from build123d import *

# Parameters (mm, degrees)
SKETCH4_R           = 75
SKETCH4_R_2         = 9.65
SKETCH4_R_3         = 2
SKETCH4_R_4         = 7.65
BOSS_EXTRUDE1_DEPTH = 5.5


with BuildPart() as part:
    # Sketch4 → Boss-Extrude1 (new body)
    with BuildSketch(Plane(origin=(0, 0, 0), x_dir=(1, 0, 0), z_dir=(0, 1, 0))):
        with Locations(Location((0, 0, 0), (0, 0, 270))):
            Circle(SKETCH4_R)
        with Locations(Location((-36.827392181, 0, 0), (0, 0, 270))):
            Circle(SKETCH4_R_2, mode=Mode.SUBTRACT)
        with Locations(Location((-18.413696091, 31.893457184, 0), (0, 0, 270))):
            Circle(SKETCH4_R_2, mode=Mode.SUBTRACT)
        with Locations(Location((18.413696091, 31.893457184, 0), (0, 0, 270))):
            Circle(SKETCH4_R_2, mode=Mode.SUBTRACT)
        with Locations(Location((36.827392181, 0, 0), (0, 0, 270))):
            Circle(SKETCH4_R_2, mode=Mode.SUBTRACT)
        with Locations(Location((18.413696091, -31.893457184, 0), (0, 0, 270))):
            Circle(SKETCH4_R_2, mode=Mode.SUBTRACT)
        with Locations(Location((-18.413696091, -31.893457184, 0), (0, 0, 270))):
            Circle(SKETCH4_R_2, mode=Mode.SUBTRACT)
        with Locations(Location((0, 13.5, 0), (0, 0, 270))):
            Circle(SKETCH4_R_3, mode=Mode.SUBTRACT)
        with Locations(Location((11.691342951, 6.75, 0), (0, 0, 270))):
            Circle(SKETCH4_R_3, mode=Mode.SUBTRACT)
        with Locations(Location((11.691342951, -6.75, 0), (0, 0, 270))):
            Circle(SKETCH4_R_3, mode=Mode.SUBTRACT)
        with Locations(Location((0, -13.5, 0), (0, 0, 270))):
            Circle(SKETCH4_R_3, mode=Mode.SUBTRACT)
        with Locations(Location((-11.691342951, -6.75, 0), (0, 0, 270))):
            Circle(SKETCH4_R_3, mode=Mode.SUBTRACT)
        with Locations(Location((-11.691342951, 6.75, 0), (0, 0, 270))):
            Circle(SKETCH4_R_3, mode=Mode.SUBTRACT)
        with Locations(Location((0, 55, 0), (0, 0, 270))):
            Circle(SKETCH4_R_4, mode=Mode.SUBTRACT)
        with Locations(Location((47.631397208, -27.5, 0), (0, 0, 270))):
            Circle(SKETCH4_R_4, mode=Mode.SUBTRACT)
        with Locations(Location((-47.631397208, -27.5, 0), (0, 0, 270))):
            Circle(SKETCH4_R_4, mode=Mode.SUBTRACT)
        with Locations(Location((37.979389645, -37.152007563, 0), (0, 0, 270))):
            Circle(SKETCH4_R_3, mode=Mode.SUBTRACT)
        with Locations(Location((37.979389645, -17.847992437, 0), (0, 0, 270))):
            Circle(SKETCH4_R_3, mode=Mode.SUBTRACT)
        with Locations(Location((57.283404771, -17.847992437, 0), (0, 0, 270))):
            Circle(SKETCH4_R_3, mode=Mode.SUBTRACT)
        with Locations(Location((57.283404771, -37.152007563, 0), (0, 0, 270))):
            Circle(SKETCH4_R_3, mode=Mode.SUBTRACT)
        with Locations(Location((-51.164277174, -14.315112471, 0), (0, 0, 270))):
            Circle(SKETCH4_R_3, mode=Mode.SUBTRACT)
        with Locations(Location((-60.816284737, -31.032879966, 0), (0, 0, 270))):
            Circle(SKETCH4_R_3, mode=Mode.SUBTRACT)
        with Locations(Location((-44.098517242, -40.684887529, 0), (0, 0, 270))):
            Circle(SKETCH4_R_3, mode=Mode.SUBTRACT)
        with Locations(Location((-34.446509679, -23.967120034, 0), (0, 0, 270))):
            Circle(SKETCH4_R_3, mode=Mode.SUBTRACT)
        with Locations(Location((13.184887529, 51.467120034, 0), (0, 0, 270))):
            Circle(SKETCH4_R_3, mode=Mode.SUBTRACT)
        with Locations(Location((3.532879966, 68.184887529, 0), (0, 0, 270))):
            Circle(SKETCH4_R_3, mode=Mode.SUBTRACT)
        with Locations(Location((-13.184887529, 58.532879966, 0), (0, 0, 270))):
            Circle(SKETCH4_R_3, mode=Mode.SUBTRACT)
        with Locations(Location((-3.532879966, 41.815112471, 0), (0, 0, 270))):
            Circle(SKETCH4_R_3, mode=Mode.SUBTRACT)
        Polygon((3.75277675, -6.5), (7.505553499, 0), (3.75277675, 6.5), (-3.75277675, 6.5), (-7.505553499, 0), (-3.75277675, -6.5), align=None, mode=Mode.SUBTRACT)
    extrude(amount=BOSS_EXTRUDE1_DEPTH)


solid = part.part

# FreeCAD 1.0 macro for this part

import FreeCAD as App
import Part
import Sketcher
from FreeCAD import Vector
Q = App.Units.Quantity

doc = App.newDocument("Part")
body = doc.addObject("PartDesign::Body", "Body")

# Sketch on XZ plane
sketch1 = body.newObject("Sketcher::SketchObject", "Sketch")
sketch1.AttachmentSupport = (doc.getObject("XZ_Plane"), [""])
sketch1.MapMode = "FlatFace"
sketch1.addGeometry([
    Part.Circle(Vector(0, 0, 0), Vector(0, 0, 1), 75),  # 0
    Part.Circle(Vector(-13.2, -58.5, 0), Vector(0, 0, 1), 2),  # 1
    Part.Circle(Vector(-18.4, -31.9, 0), Vector(0, 0, 1), 9.7),  # 2
    Part.Circle(Vector(-3.5, -41.8, 0), Vector(0, 0, 1), 2),  # 3
    Part.Circle(Vector(-51.2, 14.3, 0), Vector(0, 0, 1), 2),  # 4
    Part.Circle(Vector(-36.8, 0, 0), Vector(0, 0, 1), 9.7),  # 5
    Part.Circle(Vector(-47.6, 27.5, 0), Vector(0, 0, 1), 7.7),  # 6
    Part.Circle(Vector(-60.8, 31, 0), Vector(0, 0, 1), 2),  # 7
    Part.Circle(Vector(-34.4, 24, 0), Vector(0, 0, 1), 2),  # 8
    Part.Circle(Vector(-44.1, 40.7, 0), Vector(0, 0, 1), 2),  # 9
    Part.Circle(Vector(-11.7, -6.8, 0), Vector(0, 0, 1), 2),  # 10
    Part.Circle(Vector(-11.7, 6.8, 0), Vector(0, 0, 1), 2),  # 11
    Part.Circle(Vector(-18.4, 31.9, 0), Vector(0, 0, 1), 9.7),  # 12
    Part.Circle(Vector(3.5, -68.2, 0), Vector(0, 0, 1), 2),  # 13
    Part.Circle(Vector(0, -55, 0), Vector(0, 0, 1), 7.7),  # 14
    Part.Circle(Vector(13.2, -51.5, 0), Vector(0, 0, 1), 2),  # 15
    Part.Circle(Vector(18.4, -31.9, 0), Vector(0, 0, 1), 9.7),  # 16
    Part.Circle(Vector(0, -13.5, 0), Vector(0, 0, 1), 2),  # 17
    Part.LineSegment(Vector(7.5, 0, 0), Vector(3.8, 6.5, 0)),  # 18
    Part.LineSegment(Vector(3.8, 6.5, 0), Vector(-3.8, 6.5, 0)),  # 19
    Part.LineSegment(Vector(-3.8, 6.5, 0), Vector(-7.5, 0, 0)),  # 20
    Part.LineSegment(Vector(-7.5, 0, 0), Vector(-3.8, -6.5, 0)),  # 21
    Part.LineSegment(Vector(-3.8, -6.5, 0), Vector(3.8, -6.5, 0)),  # 22
    Part.LineSegment(Vector(3.8, -6.5, 0), Vector(7.5, 0, 0)),  # 23
    Part.Circle(Vector(11.7, -6.8, 0), Vector(0, 0, 1), 2),  # 24
    Part.Circle(Vector(0, 13.5, 0), Vector(0, 0, 1), 2),  # 25
    Part.Circle(Vector(11.7, 6.8, 0), Vector(0, 0, 1), 2),  # 26
    Part.Circle(Vector(18.4, 31.9, 0), Vector(0, 0, 1), 9.7),  # 27
    Part.Circle(Vector(36.8, 0, 0), Vector(0, 0, 1), 9.7),  # 28
    Part.Circle(Vector(38, 17.8, 0), Vector(0, 0, 1), 2),  # 29
    Part.Circle(Vector(38, 37.2, 0), Vector(0, 0, 1), 2),  # 30
    Part.Circle(Vector(47.6, 27.5, 0), Vector(0, 0, 1), 7.7),  # 31
    Part.Circle(Vector(57.3, 17.8, 0), Vector(0, 0, 1), 2),  # 32
    Part.Circle(Vector(57.3, 37.2, 0), Vector(0, 0, 1), 2),  # 33
], False)
sketch1.addConstraint([
    Sketcher.Constraint("Coincident", 18, 2, 19, 1),
    Sketcher.Constraint("Coincident", 19, 2, 20, 1),
    Sketcher.Constraint("Coincident", 20, 2, 21, 1),
    Sketcher.Constraint("Coincident", 21, 2, 22, 1),
    Sketcher.Constraint("Coincident", 22, 2, 23, 1),
    Sketcher.Constraint("Coincident", 23, 2, 18, 1),
    Sketcher.Constraint("Horizontal", 19),
    Sketcher.Constraint("Horizontal", 22),
    Sketcher.Constraint("Coincident", 0, 3, -1, 1),
    Sketcher.Constraint("Equal", 1, 3),
    Sketcher.Constraint("Equal", 3, 4),
    Sketcher.Constraint("Equal", 2, 5),
    Sketcher.Constraint("Equal", 4, 7),
    Sketcher.Constraint("Equal", 7, 8),
    Sketcher.Constraint("Equal", 8, 9),
    Sketcher.Constraint("Equal", 9, 10),
    Sketcher.Constraint("Equal", 10, 11),
    Sketcher.Constraint("Equal", 5, 12),
    Sketcher.Constraint("Equal", 11, 13),
    Sketcher.Constraint("Equal", 6, 14),
    Sketcher.Constraint("Equal", 13, 15),
    Sketcher.Constraint("Equal", 12, 16),
    Sketcher.Constraint("Equal", 15, 17),
    Sketcher.Constraint("Equal", 17, 24),
    Sketcher.Constraint("Equal", 24, 25),
    Sketcher.Constraint("Equal", 25, 26),
    Sketcher.Constraint("Equal", 16, 27),
    Sketcher.Constraint("Equal", 27, 28),
    Sketcher.Constraint("Equal", 26, 29),
    Sketcher.Constraint("Equal", 29, 30),
    Sketcher.Constraint("Equal", 14, 31),
    Sketcher.Constraint("Equal", 30, 32),
    Sketcher.Constraint("Equal", 32, 33),
    Sketcher.Constraint("Symmetric", 12, 3, 16, 3, -1, 1),
    Sketcher.Constraint("Symmetric", 11, 3, 24, 3, -1, 1),
    Sketcher.Constraint("Symmetric", 17, 3, 25, 3, -1, 1),
    Sketcher.Constraint("Symmetric", 10, 3, 26, 3, -1, 1),
    Sketcher.Constraint("Symmetric", 2, 3, 27, 3, -1, 1),
    Sketcher.Constraint("Symmetric", 5, 3, 28, 3, -1, 1),
    Sketcher.Constraint("Symmetric", 18, 2, 21, 2, -1, 1),
    Sketcher.Constraint("Symmetric", 20, 2, 23, 2, -1, 1),
    Sketcher.Constraint("Symmetric", 2, 3, 16, 3, -2),
    Sketcher.Constraint("Symmetric", 10, 3, 24, 3, -2),
    Sketcher.Constraint("Symmetric", 6, 3, 31, 3, -2),
    Sketcher.Constraint("PointOnObject", 5, 3, -1),
    Sketcher.Constraint("PointOnObject", 14, 3, -2),
    Sketcher.Constraint("PointOnObject", 17, 3, -2),
    Sketcher.Constraint("PointOnObject", 20, 2, -1),
    Sketcher.Constraint("Parallel", 20, 23),
    Sketcher.Constraint("Horizontal", 29, 3, 32, 3),
    Sketcher.Constraint("Horizontal", 30, 3, 33, 3),
    Sketcher.Constraint("Vertical", 29, 3, 30, 3),
    Sketcher.Constraint("Vertical", 32, 3, 33, 3),
    Sketcher.Constraint("Vertical", 19, 2, 21, 2),
    Sketcher.Constraint("Diameter", 0, Q("150 mm")),
    Sketcher.Constraint("Diameter", 1, Q("4 mm")),
    Sketcher.Constraint("Diameter", 2, Q("19.3 mm")),
    Sketcher.Constraint("Diameter", 6, Q("15.3 mm")),
    Sketcher.Constraint("Angle", 18, Q("120 deg")),
    Sketcher.Constraint("DistanceY", 14, 3, -1, 1, Q("55 mm")),
    Sketcher.Constraint("DistanceY", 18, 2, 25, 3, Q("7 mm")),
    Sketcher.Constraint("DistanceY", 21, 2, 19, 2, Q("13 mm")),
    Sketcher.Constraint("DistanceY", -1, 1, 6, 3, Q("27.5 mm")),
    Sketcher.Constraint("DistanceY", 10, 3, 11, 3, Q("13.5 mm")),
    Sketcher.Constraint("DistanceX", 6, 3, 2, 3, Q("29.217701 mm")),
    Sketcher.Constraint("DistanceX", 19, 2, 19, 1, Q("7.505554 mm")),
    Sketcher.Constraint("DistanceY", 1, 3, -1, 1, Q("58.53288 mm")),
    Sketcher.Constraint("DistanceX", 3, 3, -1, 1, Q("3.53288 mm")),
    Sketcher.Constraint("DistanceY", -1, 1, 7, 3, Q("31.03288 mm")),
    Sketcher.Constraint("DistanceX", 8, 3, -1, 1, Q("34.44651 mm")),
    Sketcher.Constraint("DistanceY", -1, 1, 8, 3, Q("23.96712 mm")),
    Sketcher.Constraint("DistanceX", -1, 1, 13, 3, Q("3.53288 mm")),
    Sketcher.Constraint("DistanceY", 15, 3, -1, 1, Q("51.46712 mm")),
    Sketcher.Constraint("DistanceX", -1, 1, 29, 3, Q("37.97939 mm")),
    Sketcher.Constraint("DistanceX", 2, 3, 1, 3, Q("5.228809 mm")),
    Sketcher.Constraint("DistanceX", 4, 3, 2, 3, Q("32.750581 mm")),
    Sketcher.Constraint("DistanceY", 2, 3, 4, 3, Q("46.20857 mm")),
    Sketcher.Constraint("DistanceX", 7, 3, 2, 3, Q("42.402589 mm")),
    Sketcher.Constraint("DistanceX", 6, 3, 9, 3, Q("3.53288 mm")),
    Sketcher.Constraint("DistanceX", 5, 3, 10, 3, Q("25.136049 mm")),
    Sketcher.Constraint("DistanceY", 12, 3, 9, 3, Q("8.79143 mm")),
    Sketcher.Constraint("DistanceY", 13, 3, 2, 3, Q("36.29143 mm")),
    Sketcher.Constraint("DistanceX", 15, 3, 16, 3, Q("5.228809 mm")),
    Sketcher.Constraint("DistanceY", 27, 3, 30, 3, Q("5.25855 mm")),
    Sketcher.Constraint("DistanceX", 27, 3, 32, 3, Q("38.869709 mm")),
    Sketcher.Constraint("DistanceX", 11, 3, 18, 2, Q("15.44412 mm")),
    Sketcher.Constraint("DistanceX", 1, 3, -1, 1, Q("13.184888 mm")),
    Sketcher.Constraint("DistanceY", 2, 3, -1, 1, Q("31.893457 mm")),
    Sketcher.Constraint("DistanceY", 3, 3, -1, 1, Q("41.815112 mm")),
    Sketcher.Constraint("DistanceY", -1, 1, 29, 3, Q("17.847992 mm")),
])
pad1 = body.newObject("PartDesign::Pad", "Pad")
pad1.Profile = sketch1
pad1.Length = 5.5
pad1.Reversed = True

doc.recompute()
